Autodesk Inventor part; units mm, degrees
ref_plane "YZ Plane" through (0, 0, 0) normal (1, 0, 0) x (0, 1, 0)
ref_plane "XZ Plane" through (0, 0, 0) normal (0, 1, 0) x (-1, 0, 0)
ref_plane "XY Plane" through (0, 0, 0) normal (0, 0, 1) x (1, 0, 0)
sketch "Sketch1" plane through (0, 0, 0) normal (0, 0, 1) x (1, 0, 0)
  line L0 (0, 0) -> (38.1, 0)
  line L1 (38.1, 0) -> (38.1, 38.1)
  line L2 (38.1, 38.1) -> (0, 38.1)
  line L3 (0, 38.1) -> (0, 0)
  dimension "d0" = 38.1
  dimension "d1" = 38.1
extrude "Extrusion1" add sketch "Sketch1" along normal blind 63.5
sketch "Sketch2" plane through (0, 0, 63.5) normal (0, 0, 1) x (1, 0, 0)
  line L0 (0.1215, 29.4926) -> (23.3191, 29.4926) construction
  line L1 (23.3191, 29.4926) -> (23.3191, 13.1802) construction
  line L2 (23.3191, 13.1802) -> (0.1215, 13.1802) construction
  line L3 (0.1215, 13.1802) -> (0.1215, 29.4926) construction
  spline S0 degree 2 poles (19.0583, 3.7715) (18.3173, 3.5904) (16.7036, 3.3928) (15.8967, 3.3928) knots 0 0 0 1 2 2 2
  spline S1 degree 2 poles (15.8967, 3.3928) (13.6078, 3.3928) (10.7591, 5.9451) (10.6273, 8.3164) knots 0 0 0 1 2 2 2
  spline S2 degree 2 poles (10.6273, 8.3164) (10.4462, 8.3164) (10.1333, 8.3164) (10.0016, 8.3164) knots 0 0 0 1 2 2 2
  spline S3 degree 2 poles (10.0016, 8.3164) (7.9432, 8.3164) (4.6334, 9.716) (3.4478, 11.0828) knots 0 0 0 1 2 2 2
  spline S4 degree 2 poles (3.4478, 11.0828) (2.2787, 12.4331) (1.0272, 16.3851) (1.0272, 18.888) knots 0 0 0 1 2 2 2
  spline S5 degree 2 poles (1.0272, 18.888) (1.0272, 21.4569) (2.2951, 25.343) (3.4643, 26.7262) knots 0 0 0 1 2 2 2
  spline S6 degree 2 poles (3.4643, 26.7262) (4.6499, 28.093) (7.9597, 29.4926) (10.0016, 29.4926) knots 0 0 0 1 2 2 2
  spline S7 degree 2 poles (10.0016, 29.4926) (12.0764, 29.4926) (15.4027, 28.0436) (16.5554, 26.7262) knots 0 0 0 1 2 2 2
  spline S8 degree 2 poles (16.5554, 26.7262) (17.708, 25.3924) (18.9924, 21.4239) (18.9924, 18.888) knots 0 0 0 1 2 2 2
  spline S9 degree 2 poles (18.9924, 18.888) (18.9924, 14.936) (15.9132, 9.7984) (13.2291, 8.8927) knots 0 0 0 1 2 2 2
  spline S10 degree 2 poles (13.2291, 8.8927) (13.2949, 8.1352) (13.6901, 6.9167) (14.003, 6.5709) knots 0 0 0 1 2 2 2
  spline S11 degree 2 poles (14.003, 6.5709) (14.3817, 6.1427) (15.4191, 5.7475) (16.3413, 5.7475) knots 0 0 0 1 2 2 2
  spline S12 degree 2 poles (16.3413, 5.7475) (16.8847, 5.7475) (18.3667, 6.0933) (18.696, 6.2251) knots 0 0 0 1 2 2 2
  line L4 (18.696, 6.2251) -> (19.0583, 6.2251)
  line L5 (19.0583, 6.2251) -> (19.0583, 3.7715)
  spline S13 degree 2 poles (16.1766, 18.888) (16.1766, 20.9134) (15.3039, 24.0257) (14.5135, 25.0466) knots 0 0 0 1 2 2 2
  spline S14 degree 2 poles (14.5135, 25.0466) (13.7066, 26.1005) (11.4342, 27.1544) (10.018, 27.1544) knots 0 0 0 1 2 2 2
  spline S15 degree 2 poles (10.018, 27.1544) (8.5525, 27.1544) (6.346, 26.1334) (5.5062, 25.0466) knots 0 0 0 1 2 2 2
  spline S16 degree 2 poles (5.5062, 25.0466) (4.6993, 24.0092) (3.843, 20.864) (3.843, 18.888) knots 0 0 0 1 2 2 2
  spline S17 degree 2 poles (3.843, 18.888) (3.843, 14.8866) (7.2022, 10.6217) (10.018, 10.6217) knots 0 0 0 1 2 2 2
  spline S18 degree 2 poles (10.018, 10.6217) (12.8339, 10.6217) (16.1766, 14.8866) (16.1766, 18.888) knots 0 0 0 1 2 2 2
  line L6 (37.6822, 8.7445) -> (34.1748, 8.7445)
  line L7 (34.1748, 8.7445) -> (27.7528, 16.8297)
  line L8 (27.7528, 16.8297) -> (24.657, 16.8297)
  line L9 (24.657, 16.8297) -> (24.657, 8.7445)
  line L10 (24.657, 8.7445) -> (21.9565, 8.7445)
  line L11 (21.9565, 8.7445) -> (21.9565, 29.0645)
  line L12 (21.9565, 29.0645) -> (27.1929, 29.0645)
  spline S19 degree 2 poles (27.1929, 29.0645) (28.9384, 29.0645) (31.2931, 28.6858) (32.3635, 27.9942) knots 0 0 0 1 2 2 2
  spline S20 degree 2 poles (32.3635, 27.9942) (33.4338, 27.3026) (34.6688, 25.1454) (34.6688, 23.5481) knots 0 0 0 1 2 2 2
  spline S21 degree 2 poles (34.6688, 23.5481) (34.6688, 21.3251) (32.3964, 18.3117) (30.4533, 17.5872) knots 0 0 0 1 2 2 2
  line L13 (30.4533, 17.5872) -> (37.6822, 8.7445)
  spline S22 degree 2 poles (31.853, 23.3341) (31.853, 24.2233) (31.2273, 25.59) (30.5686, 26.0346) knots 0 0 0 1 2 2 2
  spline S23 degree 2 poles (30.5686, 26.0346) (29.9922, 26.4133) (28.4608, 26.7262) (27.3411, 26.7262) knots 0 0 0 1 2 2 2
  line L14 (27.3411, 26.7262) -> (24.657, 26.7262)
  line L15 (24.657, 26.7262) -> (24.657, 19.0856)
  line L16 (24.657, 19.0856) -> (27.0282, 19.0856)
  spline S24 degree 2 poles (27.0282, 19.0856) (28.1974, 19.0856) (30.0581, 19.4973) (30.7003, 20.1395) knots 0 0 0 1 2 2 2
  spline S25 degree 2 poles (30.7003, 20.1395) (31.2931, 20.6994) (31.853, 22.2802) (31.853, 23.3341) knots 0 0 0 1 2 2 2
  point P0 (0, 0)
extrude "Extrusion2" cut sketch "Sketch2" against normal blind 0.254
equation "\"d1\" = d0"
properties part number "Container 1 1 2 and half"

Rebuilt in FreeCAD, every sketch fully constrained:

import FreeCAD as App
import Part
import Sketcher
Q = App.Units.Quantity


def add_polygon(sketch, points):
    """Adds a closed chain of lines whose ends are joined by coincident constraints."""
    first, n = sketch.GeometryCount, len(points)
    for a, b in zip(points, points[1:] + points[:1]):
        sketch.addGeometry(Part.LineSegment(App.Vector(*a, 0), App.Vector(*b, 0)), False)
    for i in range(n):
        sketch.addConstraint(Sketcher.Constraint("Coincident", first + i, 2, first + (i + 1) % n, 1))

doc = App.newDocument("Part")
body = doc.addObject("PartDesign::Body", "Body")

# Sketch on XY plane
sketch1 = body.newObject("Sketcher::SketchObject", "Sketch")
sketch1.AttachmentSupport = (doc.getObject("XY_Plane"), [""])
sketch1.MapMode = "FlatFace"
add_polygon(sketch1, [(0, 38), (0, 0), (38, 0), (38, 38)])  # lines 0-3
sketch1.addConstraint(Sketcher.Constraint("Vertical", 0))
sketch1.addConstraint(Sketcher.Constraint("Horizontal", 1))
sketch1.addConstraint(Sketcher.Constraint("Vertical", 2))
sketch1.addConstraint(Sketcher.Constraint("Horizontal", 3))
sketch1.addConstraint(Sketcher.Constraint("Coincident", 0, 2, -1, 1))
sketch1.addConstraint(Sketcher.Constraint("Equal", 3, 0))
sketch1.addConstraint(Sketcher.Constraint("DistanceX", 1, 1, 1, 2, Q("1.5 in")))
pad1 = body.newObject("PartDesign::Pad", "Pad")
pad1.Profile = sketch1
pad1.Length = Q("2.5 in")

# Sketch on XY plane
sketch2 = body.newObject("Sketcher::SketchObject", "Sketch001")
sketch2.AttachmentSupport = (doc.getObject("XY_Plane"), [""])
sketch2.MapMode = "FlatFace"
sketch2.AttachmentOffset = App.Placement(App.Vector(0, 0, 2.5 * 25.4), App.Rotation())
sketch2.addGeometry(Part.BSplineCurve([App.Vector(19.0583, 3.7715, 0), App.Vector(18.3173, 3.5904, 0), App.Vector(16.7036, 3.3928, 0), App.Vector(15.8967, 3.3928, 0)], [3, 1, 3], [0, 1, 2], False, 2, [1, 1, 1, 1], False), False)
sketch2.addGeometry(Part.LineSegment(App.Vector(19.0583, 3.7715, 0), App.Vector(19.0583, 6.2251, 0)), False)
sketch2.addGeometry(Part.LineSegment(App.Vector(19.0583, 6.2251, 0), App.Vector(18.696, 6.2251, 0)), False)
sketch2.addGeometry(Part.BSplineCurve([App.Vector(16.3413, 5.7475, 0), App.Vector(16.8847, 5.7475, 0), App.Vector(18.3667, 6.0933, 0), App.Vector(18.696, 6.2251, 0)], [3, 1, 3], [0, 1, 2], False, 2, [1, 1, 1, 1], False), False)
sketch2.addGeometry(Part.BSplineCurve([App.Vector(14.003, 6.5709, 0), App.Vector(14.3817, 6.1427, 0), App.Vector(15.4191, 5.7475, 0), App.Vector(16.3413, 5.7475, 0)], [3, 1, 3], [0, 1, 2], False, 2, [1, 1, 1, 1], False), False)
sketch2.addGeometry(Part.BSplineCurve([App.Vector(13.2291, 8.8927, 0), App.Vector(13.2949, 8.1352, 0), App.Vector(13.6901, 6.9167, 0), App.Vector(14.003, 6.5709, 0)], [3, 1, 3], [0, 1, 2], False, 2, [1, 1, 1, 1], False), False)
sketch2.addGeometry(Part.BSplineCurve([App.Vector(18.9924, 18.888, 0), App.Vector(18.9924, 14.936, 0), App.Vector(15.9132, 9.7984, 0), App.Vector(13.2291, 8.8927, 0)], [3, 1, 3], [0, 1, 2], False, 2, [1, 1, 1, 1], False), False)
sketch2.addGeometry(Part.BSplineCurve([App.Vector(16.5554, 26.7262, 0), App.Vector(17.708, 25.3924, 0), App.Vector(18.9924, 21.4239, 0), App.Vector(18.9924, 18.888, 0)], [3, 1, 3], [0, 1, 2], False, 2, [1, 1, 1, 1], False), False)
sketch2.addGeometry(Part.BSplineCurve([App.Vector(10.0016, 29.4926, 0), App.Vector(12.0764, 29.4926, 0), App.Vector(15.4027, 28.0436, 0), App.Vector(16.5554, 26.7262, 0)], [3, 1, 3], [0, 1, 2], False, 2, [1, 1, 1, 1], False), False)
sketch2.addGeometry(Part.BSplineCurve([App.Vector(3.4643, 26.7262, 0), App.Vector(4.6499, 28.093, 0), App.Vector(7.9597, 29.4926, 0), App.Vector(10.0016, 29.4926, 0)], [3, 1, 3], [0, 1, 2], False, 2, [1, 1, 1, 1], False), False)
sketch2.addGeometry(Part.BSplineCurve([App.Vector(1.0272, 18.888, 0), App.Vector(1.0272, 21.4569, 0), App.Vector(2.2951, 25.343, 0), App.Vector(3.4643, 26.7262, 0)], [3, 1, 3], [0, 1, 2], False, 2, [1, 1, 1, 1], False), False)
sketch2.addGeometry(Part.BSplineCurve([App.Vector(3.4478, 11.0828, 0), App.Vector(2.2787, 12.4331, 0), App.Vector(1.0272, 16.3851, 0), App.Vector(1.0272, 18.888, 0)], [3, 1, 3], [0, 1, 2], False, 2, [1, 1, 1, 1], False), False)
sketch2.addGeometry(Part.BSplineCurve([App.Vector(10.0016, 8.3164, 0), App.Vector(7.9432, 8.3164, 0), App.Vector(4.6334, 9.716, 0), App.Vector(3.4478, 11.0828, 0)], [3, 1, 3], [0, 1, 2], False, 2, [1, 1, 1, 1], False), False)
sketch2.addGeometry(Part.BSplineCurve([App.Vector(10.6273, 8.3164, 0), App.Vector(10.4462, 8.3164, 0), App.Vector(10.1333, 8.3164, 0), App.Vector(10.0016, 8.3164, 0)], [3, 1, 3], [0, 1, 2], False, 2, [1, 1, 1, 1], False), False)
sketch2.addGeometry(Part.BSplineCurve([App.Vector(15.8967, 3.3928, 0), App.Vector(13.6078, 3.3928, 0), App.Vector(10.7591, 5.9451, 0), App.Vector(10.6273, 8.3164, 0)], [3, 1, 3], [0, 1, 2], False, 2, [1, 1, 1, 1], False), False)
sketch2.addGeometry(Part.BSplineCurve([App.Vector(16.1766, 18.888, 0), App.Vector(16.1766, 20.9134, 0), App.Vector(15.3039, 24.0257, 0), App.Vector(14.5135, 25.0466, 0)], [3, 1, 3], [0, 1, 2], False, 2, [1, 1, 1, 1], False), False)
sketch2.addGeometry(Part.BSplineCurve([App.Vector(10.018, 10.6217, 0), App.Vector(12.8339, 10.6217, 0), App.Vector(16.1766, 14.8866, 0), App.Vector(16.1766, 18.888, 0)], [3, 1, 3], [0, 1, 2], False, 2, [1, 1, 1, 1], False), False)
sketch2.addGeometry(Part.BSplineCurve([App.Vector(3.843, 18.888, 0), App.Vector(3.843, 14.8866, 0), App.Vector(7.2022, 10.6217, 0), App.Vector(10.018, 10.6217, 0)], [3, 1, 3], [0, 1, 2], False, 2, [1, 1, 1, 1], False), False)
sketch2.addGeometry(Part.BSplineCurve([App.Vector(5.5062, 25.0466, 0), App.Vector(4.6993, 24.0092, 0), App.Vector(3.843, 20.864, 0), App.Vector(3.843, 18.888, 0)], [3, 1, 3], [0, 1, 2], False, 2, [1, 1, 1, 1], False), False)
sketch2.addGeometry(Part.BSplineCurve([App.Vector(10.018, 27.1544, 0), App.Vector(8.5525, 27.1544, 0), App.Vector(6.346, 26.1334, 0), App.Vector(5.5062, 25.0466, 0)], [3, 1, 3], [0, 1, 2], False, 2, [1, 1, 1, 1], False), False)
sketch2.addGeometry(Part.BSplineCurve([App.Vector(14.5135, 25.0466, 0), App.Vector(13.7066, 26.1005, 0), App.Vector(11.4342, 27.1544, 0), App.Vector(10.018, 27.1544, 0)], [3, 1, 3], [0, 1, 2], False, 2, [1, 1, 1, 1], False), False)
sketch2.addGeometry(Part.LineSegment(App.Vector(34.1748, 8.7445, 0), App.Vector(37.6822, 8.7445, 0)), False)
sketch2.addGeometry(Part.LineSegment(App.Vector(37.6822, 8.7445, 0), App.Vector(30.4533, 17.5872, 0)), False)
sketch2.addGeometry(Part.BSplineCurve([App.Vector(34.6688, 23.5481, 0), App.Vector(34.6688, 21.3251, 0), App.Vector(32.3964, 18.3117, 0), App.Vector(30.4533, 17.5872, 0)], [3, 1, 3], [0, 1, 2], False, 2, [1, 1, 1, 1], False), False)
sketch2.addGeometry(Part.BSplineCurve([App.Vector(32.3635, 27.9942, 0), App.Vector(33.4338, 27.3026, 0), App.Vector(34.6688, 25.1454, 0), App.Vector(34.6688, 23.5481, 0)], [3, 1, 3], [0, 1, 2], False, 2, [1, 1, 1, 1], False), False)
sketch2.addGeometry(Part.BSplineCurve([App.Vector(27.1929, 29.0645, 0), App.Vector(28.9384, 29.0645, 0), App.Vector(31.2931, 28.6858, 0), App.Vector(32.3635, 27.9942, 0)], [3, 1, 3], [0, 1, 2], False, 2, [1, 1, 1, 1], False), False)
sketch2.addGeometry(Part.LineSegment(App.Vector(27.1929, 29.0645, 0), App.Vector(21.9565, 29.0645, 0)), False)
sketch2.addGeometry(Part.LineSegment(App.Vector(21.9565, 29.0645, 0), App.Vector(21.9565, 8.7445, 0)), False)
sketch2.addGeometry(Part.LineSegment(App.Vector(21.9565, 8.7445, 0), App.Vector(24.657, 8.7445, 0)), False)
sketch2.addGeometry(Part.LineSegment(App.Vector(24.657, 8.7445, 0), App.Vector(24.657, 16.8297, 0)), False)
sketch2.addGeometry(Part.LineSegment(App.Vector(24.657, 16.8297, 0), App.Vector(27.7528, 16.8297, 0)), False)
sketch2.addGeometry(Part.LineSegment(App.Vector(27.7528, 16.8297, 0), App.Vector(34.1748, 8.7445, 0)), False)
sketch2.addGeometry(Part.BSplineCurve([App.Vector(31.853, 23.3341, 0), App.Vector(31.853, 24.2233, 0), App.Vector(31.2273, 25.59, 0), App.Vector(30.5686, 26.0346, 0)], [3, 1, 3], [0, 1, 2], False, 2, [1, 1, 1, 1], False), False)
sketch2.addGeometry(Part.BSplineCurve([App.Vector(30.7003, 20.1395, 0), App.Vector(31.2931, 20.6994, 0), App.Vector(31.853, 22.2802, 0), App.Vector(31.853, 23.3341, 0)], [3, 1, 3], [0, 1, 2], False, 2, [1, 1, 1, 1], False), False)
sketch2.addGeometry(Part.BSplineCurve([App.Vector(27.0282, 19.0856, 0), App.Vector(28.1974, 19.0856, 0), App.Vector(30.0581, 19.4973, 0), App.Vector(30.7003, 20.1395, 0)], [3, 1, 3], [0, 1, 2], False, 2, [1, 1, 1, 1], False), False)
sketch2.addGeometry(Part.LineSegment(App.Vector(27.0282, 19.0856, 0), App.Vector(24.657, 19.0856, 0)), False)
sketch2.addGeometry(Part.LineSegment(App.Vector(24.657, 19.0856, 0), App.Vector(24.657, 26.7262, 0)), False)
sketch2.addGeometry(Part.LineSegment(App.Vector(24.657, 26.7262, 0), App.Vector(27.3411, 26.7262, 0)), False)
sketch2.addGeometry(Part.BSplineCurve([App.Vector(30.5686, 26.0346, 0), App.Vector(29.9922, 26.4133, 0), App.Vector(28.4608, 26.7262, 0), App.Vector(27.3411, 26.7262, 0)], [3, 1, 3], [0, 1, 2], False, 2, [1, 1, 1, 1], False), False)
sketch2.addConstraint(Sketcher.Constraint("Block", 0))
sketch2.addConstraint(Sketcher.Constraint("Block", 3))
sketch2.addConstraint(Sketcher.Constraint("Block", 4))
sketch2.addConstraint(Sketcher.Constraint("Block", 5))
sketch2.addConstraint(Sketcher.Constraint("Block", 6))
sketch2.addConstraint(Sketcher.Constraint("Block", 7))
sketch2.addConstraint(Sketcher.Constraint("Block", 8))
sketch2.addConstraint(Sketcher.Constraint("Block", 9))
sketch2.addConstraint(Sketcher.Constraint("Block", 10))
sketch2.addConstraint(Sketcher.Constraint("Block", 11))
sketch2.addConstraint(Sketcher.Constraint("Block", 12))
sketch2.addConstraint(Sketcher.Constraint("Block", 13))
sketch2.addConstraint(Sketcher.Constraint("Block", 14))
sketch2.addConstraint(Sketcher.Constraint("Block", 15))
sketch2.addConstraint(Sketcher.Constraint("Block", 16))
sketch2.addConstraint(Sketcher.Constraint("Block", 17))
sketch2.addConstraint(Sketcher.Constraint("Block", 18))
sketch2.addConstraint(Sketcher.Constraint("Block", 19))
sketch2.addConstraint(Sketcher.Constraint("Block", 20))
sketch2.addConstraint(Sketcher.Constraint("Block", 23))
sketch2.addConstraint(Sketcher.Constraint("Block", 24))
sketch2.addConstraint(Sketcher.Constraint("Block", 25))
sketch2.addConstraint(Sketcher.Constraint("Block", 32))
sketch2.addConstraint(Sketcher.Constraint("Block", 33))
sketch2.addConstraint(Sketcher.Constraint("Block", 34))
sketch2.addConstraint(Sketcher.Constraint("Block", 38))
sketch2.addConstraint(Sketcher.Constraint("Coincident", 0, 1, 1, 1))
sketch2.addConstraint(Sketcher.Constraint("Coincident", 1, 2, 2, 1))
sketch2.addConstraint(Sketcher.Constraint("Coincident", 2, 2, 3, 2))
sketch2.addConstraint(Sketcher.Constraint("Coincident", 21, 2, 22, 1))
sketch2.addConstraint(Sketcher.Constraint("Coincident", 22, 2, 23, 2))
sketch2.addConstraint(Sketcher.Constraint("Coincident", 25, 1, 26, 1))
sketch2.addConstraint(Sketcher.Constraint("Coincident", 26, 2, 27, 1))
sketch2.addConstraint(Sketcher.Constraint("Coincident", 27, 2, 28, 1))
sketch2.addConstraint(Sketcher.Constraint("Coincident", 28, 2, 29, 1))
sketch2.addConstraint(Sketcher.Constraint("Coincident", 29, 2, 30, 1))
sketch2.addConstraint(Sketcher.Constraint("Coincident", 30, 2, 31, 1))
sketch2.addConstraint(Sketcher.Constraint("Coincident", 31, 2, 21, 1))
sketch2.addConstraint(Sketcher.Constraint("Coincident", 34, 1, 35, 1))
sketch2.addConstraint(Sketcher.Constraint("Coincident", 35, 2, 36, 1))
sketch2.addConstraint(Sketcher.Constraint("Coincident", 36, 2, 37, 1))
sketch2.addConstraint(Sketcher.Constraint("Coincident", 37, 2, 38, 2))
sketch2.addConstraint(Sketcher.Constraint("Vertical", 1))
sketch2.addConstraint(Sketcher.Constraint("Horizontal", 2))
sketch2.addConstraint(Sketcher.Constraint("Horizontal", 21))
sketch2.addConstraint(Sketcher.Constraint("Horizontal", 26))
sketch2.addConstraint(Sketcher.Constraint("Vertical", 27))
sketch2.addConstraint(Sketcher.Constraint("Horizontal", 28))
sketch2.addConstraint(Sketcher.Constraint("Vertical", 29))
sketch2.addConstraint(Sketcher.Constraint("Horizontal", 30))
sketch2.addConstraint(Sketcher.Constraint("Horizontal", 35))
sketch2.addConstraint(Sketcher.Constraint("Vertical", 36))
sketch2.addConstraint(Sketcher.Constraint("Horizontal", 37))
sketch2.addConstraint(Sketcher.Constraint("Horizontal", 21, 2, 27, 2))
sketch2.addConstraint(Sketcher.Constraint("Vertical", 29, 2, 35, 2))
sketch2.addConstraint(Sketcher.Constraint("DistanceY", 27, 2, 27, 1, Q("0.8 in")))
sketch2.addConstraint(Sketcher.Constraint("Angle", 31, Q("-51.5402 deg")))
sketch2.addConstraint(Sketcher.Constraint("DistanceX", 26, 2, 37, 2, Q("0.212 in")))
sketch2.addConstraint(Sketcher.Constraint("Distance", 31, Q("0.4065 in")))
sketch2.addConstraint(Sketcher.Constraint("DistanceX", 21, 1, 21, 2, Q("3.5074 mm")))
sketch2.addConstraint(Sketcher.Constraint("DistanceX", 28, 1, 28, 2, Q("2.7005 mm")))
sketch2.addConstraint(Sketcher.Constraint("DistanceX", 30, 1, 30, 2, Q("3.0958 mm")))
pocket1 = body.newObject("PartDesign::Pocket", "Pocket")
pocket1.Profile = sketch2
pocket1.Length = Q("0.01 in")

doc.recompute()
